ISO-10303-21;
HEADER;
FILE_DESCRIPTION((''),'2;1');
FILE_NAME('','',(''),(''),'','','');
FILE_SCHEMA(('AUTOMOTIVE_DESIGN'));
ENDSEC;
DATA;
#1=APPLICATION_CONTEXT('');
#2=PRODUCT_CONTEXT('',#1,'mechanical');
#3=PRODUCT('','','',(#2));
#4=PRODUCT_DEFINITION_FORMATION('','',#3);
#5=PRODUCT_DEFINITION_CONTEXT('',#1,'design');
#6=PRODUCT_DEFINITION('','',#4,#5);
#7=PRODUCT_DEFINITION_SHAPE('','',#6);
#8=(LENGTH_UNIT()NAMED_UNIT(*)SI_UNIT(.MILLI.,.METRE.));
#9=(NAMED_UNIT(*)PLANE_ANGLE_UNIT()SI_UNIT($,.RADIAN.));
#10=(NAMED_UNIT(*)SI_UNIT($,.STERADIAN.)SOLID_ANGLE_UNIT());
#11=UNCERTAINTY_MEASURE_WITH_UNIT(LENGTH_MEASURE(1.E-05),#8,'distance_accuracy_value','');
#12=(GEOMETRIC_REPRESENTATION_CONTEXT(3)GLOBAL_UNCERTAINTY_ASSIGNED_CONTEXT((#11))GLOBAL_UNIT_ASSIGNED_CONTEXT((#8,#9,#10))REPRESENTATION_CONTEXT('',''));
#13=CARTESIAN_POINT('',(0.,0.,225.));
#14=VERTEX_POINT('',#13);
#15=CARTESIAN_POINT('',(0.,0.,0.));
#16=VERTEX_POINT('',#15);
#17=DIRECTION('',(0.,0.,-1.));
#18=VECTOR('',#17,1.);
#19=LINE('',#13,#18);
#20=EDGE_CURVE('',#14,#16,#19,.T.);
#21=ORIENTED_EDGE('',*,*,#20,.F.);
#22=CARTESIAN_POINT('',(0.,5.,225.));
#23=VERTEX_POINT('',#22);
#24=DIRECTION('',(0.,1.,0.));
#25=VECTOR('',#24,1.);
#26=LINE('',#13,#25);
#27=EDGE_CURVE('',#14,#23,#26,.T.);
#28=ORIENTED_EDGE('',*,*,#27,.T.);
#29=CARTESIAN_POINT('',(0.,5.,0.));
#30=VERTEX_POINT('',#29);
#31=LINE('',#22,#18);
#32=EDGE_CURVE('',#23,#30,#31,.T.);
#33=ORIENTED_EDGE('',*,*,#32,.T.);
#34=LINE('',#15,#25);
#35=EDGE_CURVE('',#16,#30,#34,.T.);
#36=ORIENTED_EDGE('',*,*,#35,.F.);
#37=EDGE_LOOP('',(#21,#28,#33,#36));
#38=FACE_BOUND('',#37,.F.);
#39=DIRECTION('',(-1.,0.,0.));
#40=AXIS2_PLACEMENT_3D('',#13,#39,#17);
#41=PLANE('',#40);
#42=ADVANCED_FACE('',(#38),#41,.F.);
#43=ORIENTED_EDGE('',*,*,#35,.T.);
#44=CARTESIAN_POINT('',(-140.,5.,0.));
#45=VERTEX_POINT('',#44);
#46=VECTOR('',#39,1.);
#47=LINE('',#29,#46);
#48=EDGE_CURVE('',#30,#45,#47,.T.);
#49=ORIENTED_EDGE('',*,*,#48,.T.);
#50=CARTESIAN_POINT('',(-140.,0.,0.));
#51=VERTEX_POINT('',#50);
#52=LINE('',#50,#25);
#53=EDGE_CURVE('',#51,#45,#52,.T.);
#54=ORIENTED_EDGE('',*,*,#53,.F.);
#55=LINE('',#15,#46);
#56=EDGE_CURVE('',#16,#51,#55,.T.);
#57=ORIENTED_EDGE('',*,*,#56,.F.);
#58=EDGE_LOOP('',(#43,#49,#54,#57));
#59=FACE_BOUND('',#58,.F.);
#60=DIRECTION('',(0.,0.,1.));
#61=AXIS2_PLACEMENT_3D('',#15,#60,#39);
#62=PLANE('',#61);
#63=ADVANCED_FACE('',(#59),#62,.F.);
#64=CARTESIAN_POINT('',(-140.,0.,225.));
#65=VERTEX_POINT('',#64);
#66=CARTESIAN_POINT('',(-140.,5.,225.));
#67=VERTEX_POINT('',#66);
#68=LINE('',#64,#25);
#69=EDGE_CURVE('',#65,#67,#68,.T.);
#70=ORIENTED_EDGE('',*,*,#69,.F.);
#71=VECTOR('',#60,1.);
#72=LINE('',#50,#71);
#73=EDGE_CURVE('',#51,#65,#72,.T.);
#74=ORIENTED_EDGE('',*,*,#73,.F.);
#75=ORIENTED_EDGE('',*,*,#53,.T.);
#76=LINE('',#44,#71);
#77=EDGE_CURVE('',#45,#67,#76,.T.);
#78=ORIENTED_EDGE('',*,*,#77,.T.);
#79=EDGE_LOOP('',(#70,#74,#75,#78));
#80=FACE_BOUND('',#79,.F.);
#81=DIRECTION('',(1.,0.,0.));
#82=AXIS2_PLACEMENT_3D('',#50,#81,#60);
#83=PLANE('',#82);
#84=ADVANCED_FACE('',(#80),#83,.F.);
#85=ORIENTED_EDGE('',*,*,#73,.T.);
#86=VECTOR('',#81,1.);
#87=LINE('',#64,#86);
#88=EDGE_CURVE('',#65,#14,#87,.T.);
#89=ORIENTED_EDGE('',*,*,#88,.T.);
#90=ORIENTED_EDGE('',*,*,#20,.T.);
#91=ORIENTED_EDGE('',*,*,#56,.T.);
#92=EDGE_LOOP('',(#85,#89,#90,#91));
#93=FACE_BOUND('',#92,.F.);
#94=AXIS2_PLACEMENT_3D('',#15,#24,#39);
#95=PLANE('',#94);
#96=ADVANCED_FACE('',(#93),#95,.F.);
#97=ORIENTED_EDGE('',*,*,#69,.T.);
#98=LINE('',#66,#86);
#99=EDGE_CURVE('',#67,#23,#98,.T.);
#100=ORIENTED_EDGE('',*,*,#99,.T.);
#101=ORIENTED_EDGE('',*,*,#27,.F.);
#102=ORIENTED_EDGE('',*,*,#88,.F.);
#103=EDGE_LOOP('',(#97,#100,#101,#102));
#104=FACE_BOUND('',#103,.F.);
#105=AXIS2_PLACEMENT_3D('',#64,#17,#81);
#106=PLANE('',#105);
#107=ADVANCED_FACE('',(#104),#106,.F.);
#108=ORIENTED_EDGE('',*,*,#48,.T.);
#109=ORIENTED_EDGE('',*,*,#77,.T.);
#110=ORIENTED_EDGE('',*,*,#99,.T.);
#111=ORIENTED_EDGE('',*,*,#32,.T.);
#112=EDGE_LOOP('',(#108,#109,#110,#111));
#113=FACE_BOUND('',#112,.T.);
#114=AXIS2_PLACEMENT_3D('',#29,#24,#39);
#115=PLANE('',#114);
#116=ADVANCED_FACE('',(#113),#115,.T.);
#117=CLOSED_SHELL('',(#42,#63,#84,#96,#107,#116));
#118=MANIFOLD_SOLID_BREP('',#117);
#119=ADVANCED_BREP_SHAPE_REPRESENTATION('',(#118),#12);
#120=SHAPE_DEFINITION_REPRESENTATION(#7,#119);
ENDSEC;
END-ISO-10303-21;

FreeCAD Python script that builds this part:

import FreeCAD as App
import Part
import Sketcher
Q = App.Units.Quantity

doc = App.newDocument("Part")
body = doc.addObject("PartDesign::Body", "Body")

# Sketch on XZ plane
sketch1 = body.newObject("Sketcher::SketchObject", "Sketch")
sketch1.AttachmentSupport = (doc.getObject("XZ_Plane"), [""])
sketch1.MapMode = "FlatFace"
sketch1.addGeometry([
    Part.LineSegment(App.Vector(0, 225, 0), App.Vector(0, 0, 0)),
    Part.LineSegment(App.Vector(0, 0, 0), App.Vector(-140, 0, 0)),
    Part.LineSegment(App.Vector(-140, 0, 0), App.Vector(-140, 225, 0)),
    Part.LineSegment(App.Vector(-140, 225, 0), App.Vector(0, 225, 0)),
], False)
sketch1.addConstraint([
    Sketcher.Constraint("Coincident", 0, 2, 1, 1),
    Sketcher.Constraint("Coincident", 1, 2, 2, 1),
    Sketcher.Constraint("Coincident", 2, 2, 3, 1),
    Sketcher.Constraint("Coincident", 3, 2, 0, 1),
    Sketcher.Constraint("Vertical", 0),
    Sketcher.Constraint("Horizontal", 1),
    Sketcher.Constraint("Vertical", 2),
    Sketcher.Constraint("Horizontal", 3),
    Sketcher.Constraint("Coincident", 0, 2, -1, 1),
    Sketcher.Constraint("DistanceX", 1, 2, 1, 1, Q("140 mm")),
    Sketcher.Constraint("DistanceY", 0, 2, 0, 1, Q("225 mm")),
])
pad1 = body.newObject("PartDesign::Pad", "Pad")
pad1.Profile = sketch1
pad1.Length = 5
pad1.Reversed = True

doc.recompute()
